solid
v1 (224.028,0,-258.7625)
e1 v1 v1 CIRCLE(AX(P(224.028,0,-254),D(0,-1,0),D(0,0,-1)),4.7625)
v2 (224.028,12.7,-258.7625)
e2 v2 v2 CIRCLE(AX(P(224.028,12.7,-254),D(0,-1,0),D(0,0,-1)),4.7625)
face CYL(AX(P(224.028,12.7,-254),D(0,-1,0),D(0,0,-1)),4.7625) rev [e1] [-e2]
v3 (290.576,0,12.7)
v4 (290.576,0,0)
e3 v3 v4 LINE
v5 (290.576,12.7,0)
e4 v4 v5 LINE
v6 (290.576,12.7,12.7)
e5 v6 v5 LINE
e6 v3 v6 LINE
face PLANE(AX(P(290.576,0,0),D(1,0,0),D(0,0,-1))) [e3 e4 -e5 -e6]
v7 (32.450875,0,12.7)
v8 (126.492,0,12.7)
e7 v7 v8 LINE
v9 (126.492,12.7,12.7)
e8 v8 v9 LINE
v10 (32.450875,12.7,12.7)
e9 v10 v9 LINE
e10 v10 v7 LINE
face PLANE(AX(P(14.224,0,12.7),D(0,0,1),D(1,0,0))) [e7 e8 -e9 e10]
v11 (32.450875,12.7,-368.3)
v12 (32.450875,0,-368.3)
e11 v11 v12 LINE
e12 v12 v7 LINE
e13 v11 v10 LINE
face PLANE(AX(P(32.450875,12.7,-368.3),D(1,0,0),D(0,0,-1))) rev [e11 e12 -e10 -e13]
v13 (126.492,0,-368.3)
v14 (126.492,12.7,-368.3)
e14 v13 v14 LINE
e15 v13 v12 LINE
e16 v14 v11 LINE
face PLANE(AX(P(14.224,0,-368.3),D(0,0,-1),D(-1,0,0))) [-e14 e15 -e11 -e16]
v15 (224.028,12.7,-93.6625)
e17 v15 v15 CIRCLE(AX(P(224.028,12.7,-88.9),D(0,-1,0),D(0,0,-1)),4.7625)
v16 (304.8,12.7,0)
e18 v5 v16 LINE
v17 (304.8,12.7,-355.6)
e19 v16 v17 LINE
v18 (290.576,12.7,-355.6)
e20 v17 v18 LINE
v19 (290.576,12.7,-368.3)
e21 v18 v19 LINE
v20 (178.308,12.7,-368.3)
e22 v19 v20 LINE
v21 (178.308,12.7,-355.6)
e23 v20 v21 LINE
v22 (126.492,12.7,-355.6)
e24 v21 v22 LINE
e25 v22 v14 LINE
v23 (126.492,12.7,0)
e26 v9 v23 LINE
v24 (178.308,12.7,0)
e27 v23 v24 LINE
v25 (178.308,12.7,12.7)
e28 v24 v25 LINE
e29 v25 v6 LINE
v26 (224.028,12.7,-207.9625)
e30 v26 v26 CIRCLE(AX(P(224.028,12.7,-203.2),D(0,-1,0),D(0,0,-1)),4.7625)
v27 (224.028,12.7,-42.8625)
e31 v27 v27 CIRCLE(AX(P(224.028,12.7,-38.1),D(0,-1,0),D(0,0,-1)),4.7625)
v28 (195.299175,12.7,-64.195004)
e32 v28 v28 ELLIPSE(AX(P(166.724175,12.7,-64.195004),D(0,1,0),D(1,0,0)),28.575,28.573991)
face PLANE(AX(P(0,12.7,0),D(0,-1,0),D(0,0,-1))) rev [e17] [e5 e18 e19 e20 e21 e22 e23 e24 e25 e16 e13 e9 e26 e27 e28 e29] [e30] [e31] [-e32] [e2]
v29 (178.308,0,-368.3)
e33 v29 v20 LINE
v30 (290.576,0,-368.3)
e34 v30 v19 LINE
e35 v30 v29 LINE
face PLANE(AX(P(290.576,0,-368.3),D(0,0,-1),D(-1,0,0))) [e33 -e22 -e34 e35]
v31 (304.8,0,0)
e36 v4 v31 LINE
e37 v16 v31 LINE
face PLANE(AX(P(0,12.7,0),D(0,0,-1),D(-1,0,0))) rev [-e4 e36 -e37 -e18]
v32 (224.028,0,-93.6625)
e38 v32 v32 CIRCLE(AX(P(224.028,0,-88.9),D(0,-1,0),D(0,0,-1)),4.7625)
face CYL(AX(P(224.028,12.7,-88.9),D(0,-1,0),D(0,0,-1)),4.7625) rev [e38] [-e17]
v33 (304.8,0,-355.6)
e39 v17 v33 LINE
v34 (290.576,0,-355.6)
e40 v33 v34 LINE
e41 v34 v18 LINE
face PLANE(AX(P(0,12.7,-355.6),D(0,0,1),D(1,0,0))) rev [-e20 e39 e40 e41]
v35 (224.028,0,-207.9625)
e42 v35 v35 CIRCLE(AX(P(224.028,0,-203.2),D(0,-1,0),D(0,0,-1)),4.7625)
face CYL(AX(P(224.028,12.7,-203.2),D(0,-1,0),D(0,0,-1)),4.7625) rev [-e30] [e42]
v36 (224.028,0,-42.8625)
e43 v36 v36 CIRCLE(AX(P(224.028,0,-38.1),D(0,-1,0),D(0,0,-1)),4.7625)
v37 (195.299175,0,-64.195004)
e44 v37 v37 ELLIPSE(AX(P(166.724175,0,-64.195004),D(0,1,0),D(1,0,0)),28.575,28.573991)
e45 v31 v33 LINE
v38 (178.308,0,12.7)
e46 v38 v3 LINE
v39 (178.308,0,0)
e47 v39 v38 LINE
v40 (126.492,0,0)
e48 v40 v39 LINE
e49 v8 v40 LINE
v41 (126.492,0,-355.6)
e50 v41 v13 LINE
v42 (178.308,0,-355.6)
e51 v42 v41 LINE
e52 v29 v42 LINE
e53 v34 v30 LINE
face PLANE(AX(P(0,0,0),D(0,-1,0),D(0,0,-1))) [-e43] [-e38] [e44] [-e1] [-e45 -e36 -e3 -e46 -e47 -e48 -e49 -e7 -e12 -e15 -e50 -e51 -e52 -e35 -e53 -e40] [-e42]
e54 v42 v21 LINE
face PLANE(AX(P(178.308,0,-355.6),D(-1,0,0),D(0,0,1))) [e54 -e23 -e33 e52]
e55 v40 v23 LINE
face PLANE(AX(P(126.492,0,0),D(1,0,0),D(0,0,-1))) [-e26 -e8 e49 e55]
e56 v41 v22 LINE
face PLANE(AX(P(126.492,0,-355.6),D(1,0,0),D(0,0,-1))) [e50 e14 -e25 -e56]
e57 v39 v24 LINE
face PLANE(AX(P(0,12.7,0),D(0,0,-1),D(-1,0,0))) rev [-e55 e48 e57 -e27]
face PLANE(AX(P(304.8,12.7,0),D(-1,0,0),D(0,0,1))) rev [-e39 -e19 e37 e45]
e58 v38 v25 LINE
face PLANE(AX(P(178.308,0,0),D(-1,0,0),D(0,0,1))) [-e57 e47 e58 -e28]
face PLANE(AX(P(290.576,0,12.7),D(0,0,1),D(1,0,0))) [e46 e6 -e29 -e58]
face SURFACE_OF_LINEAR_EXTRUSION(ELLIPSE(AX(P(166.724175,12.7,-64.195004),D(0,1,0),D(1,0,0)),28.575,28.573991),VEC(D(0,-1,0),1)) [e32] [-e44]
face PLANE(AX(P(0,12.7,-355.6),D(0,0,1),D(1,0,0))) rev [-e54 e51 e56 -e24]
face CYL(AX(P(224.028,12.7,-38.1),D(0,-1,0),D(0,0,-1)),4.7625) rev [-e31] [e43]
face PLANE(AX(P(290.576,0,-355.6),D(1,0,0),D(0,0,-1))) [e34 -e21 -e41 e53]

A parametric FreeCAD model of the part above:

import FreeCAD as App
import Part
import Sketcher
Q = App.Units.Quantity


def add_polygon(sketch, points):
    """Adds a closed chain of lines whose ends are joined by coincident constraints."""
    first, n = sketch.GeometryCount, len(points)
    for a, b in zip(points, points[1:] + points[:1]):
        sketch.addGeometry(Part.LineSegment(App.Vector(*a, 0), App.Vector(*b, 0)), False)
    for i in range(n):
        sketch.addConstraint(Sketcher.Constraint("Coincident", first + i, 2, first + (i + 1) % n, 1))

doc = App.newDocument("Part")
body = doc.addObject("PartDesign::Body", "Body")

# Sketch on XZ plane
sketch1 = body.newObject("Sketcher::SketchObject", "Sketch")
sketch1.AttachmentSupport = (doc.getObject("XZ_Plane"), [""])
sketch1.MapMode = "FlatFace"
add_polygon(sketch1, [(0, -355.6), (0, 0), (304.8, 0), (304.8, -355.6)])  # lines 0-3
sketch1.addGeometry(Part.Ellipse(App.Vector(195.299175, -64.195004, 0), App.Vector(166.724175, -35.621013, 0), App.Vector(166.724175, -64.195004, 0)), False)  # 4
sketch1.addConstraint([
    Sketcher.Constraint("Block", 4),
    Sketcher.Constraint("Vertical", 0),
    Sketcher.Constraint("Horizontal", 1),
    Sketcher.Constraint("Vertical", 2),
    Sketcher.Constraint("Horizontal", 3),
    Sketcher.Constraint("Coincident", 0, 2, -1, 1),
    Sketcher.Constraint("DistanceX", 1, 1, 1, 2, Q("12 in")),
    Sketcher.Constraint("DistanceY", 0, 1, 0, 2, Q("14 in")),
])
pad1 = body.newObject("PartDesign::Pad", "Pad")
pad1.Profile = sketch1
pad1.Length = Q("0.5 in")
pad1.Reversed = True

# Sketch on XZ plane
sketch2 = body.newObject("Sketcher::SketchObject", "Sketch001")
sketch2.AttachmentSupport = (doc.getObject("XZ_Plane"), [""])
sketch2.MapMode = "FlatFace"
sketch2.addGeometry([
    Part.Circle(App.Vector(224, -38.1, 0), App.Vector(0, 0, 1), 4.8),
    Part.Circle(App.Vector(224, -88.9, 0), App.Vector(0, 0, 1), 4.8),
    Part.Circle(App.Vector(224, -203.2, 0), App.Vector(0, 0, 1), 4.8),
    Part.Circle(App.Vector(224, -254, 0), App.Vector(0, 0, 1), 4.8),
], False)
sketch2.addConstraint([
    Sketcher.Constraint("Equal", 0, 1),
    Sketcher.Constraint("Equal", 1, 2),
    Sketcher.Constraint("Equal", 2, 3),
    Sketcher.Constraint("Vertical", 0, 3, 1, 3),
    Sketcher.Constraint("Vertical", 1, 3, 2, 3),
    Sketcher.Constraint("Vertical", 2, 3, 3, 3),
    Sketcher.Constraint("Diameter", 0, Q("0.375 in")),
    Sketcher.Constraint("DistanceY", 2, 3, -1, 1, Q("8 in")),
    Sketcher.Constraint("DistanceY", 3, 3, -1, 1, Q("10 in")),
    Sketcher.Constraint("DistanceY", 1, 3, 0, 3, Q("2 in")),
    Sketcher.Constraint("DistanceY", 0, 3, -1, 1, Q("1.5 in")),
    Sketcher.Constraint("DistanceX", -1, 1, 0, 3, Q("8.82 in")),
])
pocket1 = body.newObject("PartDesign::Pocket", "Pocket")
pocket1.Profile = sketch2
pocket1.Length = Q("0.5 in")

# Sketch on XZ plane
sketch3 = body.newObject("Sketcher::SketchObject", "Sketch002")
sketch3.AttachmentSupport = (doc.getObject("XZ_Plane"), [""])
sketch3.MapMode = "FlatFace"
sketch3.AttachmentOffset = App.Placement(App.Vector(0, 0, -0.5 * 25.4), App.Rotation())
add_polygon(sketch3, [(14, -368), (14, -356), (126, -356), (126, -368)])  # lines 0-3
add_polygon(sketch3, [(178, -368), (178, -356), (291, -356), (291, -368)])  # lines 4-7
add_polygon(sketch3, [(178, 0), (178, 13), (291, 13), (291, 0)])  # lines 8-11
add_polygon(sketch3, [(14, 0), (14, 13), (126, 13), (126, 0)])  # lines 12-15
sketch3.addConstraint([
    Sketcher.Constraint("Vertical", 0),
    Sketcher.Constraint("Horizontal", 1),
    Sketcher.Constraint("Vertical", 2),
    Sketcher.Constraint("Horizontal", 3),
    Sketcher.Constraint("Vertical", 4),
    Sketcher.Constraint("Horizontal", 5),
    Sketcher.Constraint("Vertical", 6),
    Sketcher.Constraint("Horizontal", 7),
    Sketcher.Constraint("Vertical", 8),
    Sketcher.Constraint("Horizontal", 9),
    Sketcher.Constraint("Vertical", 10),
    Sketcher.Constraint("Horizontal", 11),
    Sketcher.Constraint("Vertical", 12),
    Sketcher.Constraint("Horizontal", 13),
    Sketcher.Constraint("Vertical", 14),
    Sketcher.Constraint("Horizontal", 15),
    Sketcher.Constraint("PointOnObject", 10, 2, -1),
    Sketcher.Constraint("PointOnObject", 14, 2, -1),
    Sketcher.Constraint("Horizontal", 1, 2, 4, 2),
    Sketcher.Constraint("Horizontal", 3, 2, 6, 2),
    Sketcher.Constraint("Horizontal", 9, 2, 12, 2),
    Sketcher.Constraint("Vertical", 7, 2, 8, 2),
    Sketcher.Constraint("Vertical", 6, 2, 9, 2),
    Sketcher.Constraint("Vertical", 3, 2, 12, 2),
    Sketcher.Constraint("Vertical", 2, 2, 13, 2),
    Sketcher.Constraint("Equal", 3, 5),
    Sketcher.Constraint("Equal", 6, 8),
    Sketcher.Constraint("DistanceY", 0, 1, 0, 2, Q("0.5 in")),
    Sketcher.Constraint("DistanceY", 0, 2, -1, 1, Q("14 in")),
    Sketcher.Constraint("DistanceX", 1, 1, 1, 2, Q("4.42 in")),
    Sketcher.Constraint("DistanceX", -1, 1, 0, 2, Q("0.56 in")),
    Sketcher.Constraint("DistanceX", -1, 1, 4, 2, Q("7.02 in")),
])
pad2 = body.newObject("PartDesign::Pad", "Pad001")
pad2.Profile = sketch3
pad2.Length = Q("0.5 in")

# Sketch on XZ plane
sketch4 = body.newObject("Sketcher::SketchObject", "Sketch003")
sketch4.AttachmentSupport = (doc.getObject("XZ_Plane"), [""])
sketch4.MapMode = "FlatFace"
add_polygon(sketch4, [(-6, 13), (-6, -368), (32, -368), (32, 13)])  # lines 0-3
sketch4.addConstraint([
    Sketcher.Constraint("Vertical", 0),
    Sketcher.Constraint("Horizontal", 1),
    Sketcher.Constraint("Vertical", 2),
    Sketcher.Constraint("Horizontal", 3),
    Sketcher.Constraint("DistanceY", 0, 2, 0, 1, Q("15 in")),
    Sketcher.Constraint("DistanceY", 0, 2, -1, 1, Q("14.5 in")),
    Sketcher.Constraint("DistanceX", 1, 1, 1, 2, 38.38372),
    Sketcher.Constraint("DistanceX", 0, 2, -1, 1, 5.932845),
])
pocket2 = body.newObject("PartDesign::Pocket", "Pocket001")
pocket2.Profile = sketch4
pocket2.Type = "ThroughAll"

doc.recompute()
